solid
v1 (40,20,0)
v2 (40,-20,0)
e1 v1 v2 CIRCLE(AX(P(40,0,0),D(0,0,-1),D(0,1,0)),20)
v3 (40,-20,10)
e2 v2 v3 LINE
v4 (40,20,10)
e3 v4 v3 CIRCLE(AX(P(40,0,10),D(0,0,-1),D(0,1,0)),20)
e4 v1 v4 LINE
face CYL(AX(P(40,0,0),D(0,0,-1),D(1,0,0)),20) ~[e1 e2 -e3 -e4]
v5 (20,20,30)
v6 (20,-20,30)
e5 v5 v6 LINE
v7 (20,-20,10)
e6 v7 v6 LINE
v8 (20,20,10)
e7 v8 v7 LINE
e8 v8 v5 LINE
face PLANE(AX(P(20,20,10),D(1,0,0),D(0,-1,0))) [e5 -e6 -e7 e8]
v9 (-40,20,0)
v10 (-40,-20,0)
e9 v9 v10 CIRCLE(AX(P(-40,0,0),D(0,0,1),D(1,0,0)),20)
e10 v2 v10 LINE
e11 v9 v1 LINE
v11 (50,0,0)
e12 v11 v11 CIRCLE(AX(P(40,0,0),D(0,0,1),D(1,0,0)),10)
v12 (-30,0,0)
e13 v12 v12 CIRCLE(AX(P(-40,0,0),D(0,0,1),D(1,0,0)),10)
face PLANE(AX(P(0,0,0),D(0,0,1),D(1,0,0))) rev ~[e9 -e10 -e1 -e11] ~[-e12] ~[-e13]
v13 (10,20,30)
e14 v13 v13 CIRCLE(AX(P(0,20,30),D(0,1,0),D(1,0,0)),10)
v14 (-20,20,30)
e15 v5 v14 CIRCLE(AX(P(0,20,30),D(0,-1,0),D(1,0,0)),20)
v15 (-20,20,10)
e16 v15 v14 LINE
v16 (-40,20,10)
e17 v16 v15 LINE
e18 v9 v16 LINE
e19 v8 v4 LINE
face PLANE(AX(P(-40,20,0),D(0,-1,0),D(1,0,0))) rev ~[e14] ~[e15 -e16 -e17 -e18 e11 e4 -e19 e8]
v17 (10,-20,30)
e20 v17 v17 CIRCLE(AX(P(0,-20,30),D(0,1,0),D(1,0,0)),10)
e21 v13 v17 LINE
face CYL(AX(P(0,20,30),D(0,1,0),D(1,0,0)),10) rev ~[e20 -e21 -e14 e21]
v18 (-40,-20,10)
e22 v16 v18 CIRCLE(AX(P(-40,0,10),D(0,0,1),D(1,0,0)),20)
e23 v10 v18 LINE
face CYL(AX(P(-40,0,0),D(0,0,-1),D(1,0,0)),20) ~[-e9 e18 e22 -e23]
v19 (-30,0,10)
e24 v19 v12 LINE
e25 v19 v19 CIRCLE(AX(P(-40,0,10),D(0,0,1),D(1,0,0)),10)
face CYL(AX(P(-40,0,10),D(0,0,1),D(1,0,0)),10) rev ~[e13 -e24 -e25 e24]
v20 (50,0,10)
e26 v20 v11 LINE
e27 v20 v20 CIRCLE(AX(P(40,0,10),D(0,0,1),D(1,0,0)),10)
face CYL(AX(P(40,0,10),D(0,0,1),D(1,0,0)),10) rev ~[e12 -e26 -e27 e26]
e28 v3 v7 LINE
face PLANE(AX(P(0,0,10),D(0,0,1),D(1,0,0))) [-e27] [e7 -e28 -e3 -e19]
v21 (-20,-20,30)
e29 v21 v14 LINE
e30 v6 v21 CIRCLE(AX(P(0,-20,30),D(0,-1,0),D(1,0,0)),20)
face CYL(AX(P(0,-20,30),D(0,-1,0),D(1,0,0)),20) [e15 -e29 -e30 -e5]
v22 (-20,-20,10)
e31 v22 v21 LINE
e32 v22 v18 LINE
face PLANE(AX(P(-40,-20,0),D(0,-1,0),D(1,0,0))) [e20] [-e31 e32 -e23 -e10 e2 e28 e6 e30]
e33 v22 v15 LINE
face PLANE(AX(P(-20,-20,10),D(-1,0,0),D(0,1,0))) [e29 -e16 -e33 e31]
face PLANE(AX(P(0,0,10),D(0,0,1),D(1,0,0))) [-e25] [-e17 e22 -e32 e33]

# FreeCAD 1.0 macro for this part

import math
import FreeCAD as App
import Part
import Sketcher
from FreeCAD import Vector
Q = App.Units.Quantity

doc = App.newDocument("Part")
body = doc.addObject("PartDesign::Body", "Body")

sketch1 = body.newObject("Sketcher::SketchObject", "Sketch")
sketch1.AttachmentSupport = (doc.getObject("XY_Plane"), [""])
sketch1.MapMode = "FlatFace"
sketch1.addGeometry(Part.LineSegment(Vector(40, 20, 0), Vector(-40, 20, 0)), False)
sketch1.addGeometry(Part.ArcOfCircle(Part.Circle(Vector(-40, 0, 0), Vector(0, 0, 1), 20), math.radians(90), math.radians(270)), False)
sketch1.addGeometry(Part.LineSegment(Vector(-40, -20, 0), Vector(40, -20, 0)), False)
sketch1.addGeometry(Part.ArcOfCircle(Part.Circle(Vector(40, 0, 0), Vector(0, 0, 1), 20), math.radians(-90), math.radians(90)), False)
sketch1.addConstraint(Sketcher.Constraint("Tangent", 0, 2, 1, 1))
sketch1.addConstraint(Sketcher.Constraint("Tangent", 1, 2, 2, 1))
sketch1.addConstraint(Sketcher.Constraint("Tangent", 2, 2, 3, 1))
sketch1.addConstraint(Sketcher.Constraint("Tangent", 3, 2, 0, 1))
sketch1.addConstraint(Sketcher.Constraint("Horizontal", 0))
sketch1.addConstraint(Sketcher.Constraint("Horizontal", 2))
sketch1.addConstraint(Sketcher.Constraint("Symmetric", 1, 3, 3, 3, -1, 1))
sketch1.addConstraint(Sketcher.Constraint("Radius", 1, Q("20 mm")))
sketch1.addConstraint(Sketcher.Constraint("DistanceX", 0, 2, 0, 1, Q("80 mm")))
pad1 = body.newObject("PartDesign::Pad", "Pad")
pad1.Profile = sketch1
pad1.Length = 10

sketch2 = body.newObject("Sketcher::SketchObject", "Sketch001")
sketch2.AttachmentSupport = (doc.getObject("XY_Plane"), [""])
sketch2.MapMode = "FlatFace"
sketch2.AttachmentOffset = App.Placement(Vector(0, 0, 10), App.Rotation())
sketch2.addGeometry(Part.Circle(Vector(-40, 0, 0), Vector(0, 0, 1), 10), False)
sketch2.addGeometry(Part.Circle(Vector(40, 0, 0), Vector(0, 0, 1), 10), False)
sketch2.addConstraint(Sketcher.Constraint("Equal", 0, 1))
sketch2.addConstraint(Sketcher.Constraint("Symmetric", 0, 3, 1, 3, -1, 1))
sketch2.addConstraint(Sketcher.Constraint("PointOnObject", 0, 3, -1))
sketch2.addConstraint(Sketcher.Constraint("Diameter", 0, Q("20 mm")))
sketch2.addConstraint(Sketcher.Constraint("DistanceX", 0, 3, -1, 1, Q("40 mm")))
pocket1 = body.newObject("PartDesign::Pocket", "Pocket")
pocket1.Profile = sketch2
pocket1.Length = 10

sketch3 = body.newObject("Sketcher::SketchObject", "Sketch002")
sketch3.AttachmentSupport = (doc.getObject("XY_Plane"), [""])
sketch3.MapMode = "FlatFace"
sketch3.AttachmentOffset = App.Placement(Vector(0, 0, 10), App.Rotation())
sketch3.addGeometry(Part.LineSegment(Vector(20, 20, 0), Vector(-20, 20, 0)), False)
sketch3.addGeometry(Part.LineSegment(Vector(-20, 20, 0), Vector(-20, -20, 0)), False)
sketch3.addGeometry(Part.LineSegment(Vector(-20, -20, 0), Vector(20, -20, 0)), False)
sketch3.addGeometry(Part.LineSegment(Vector(20, -20, 0), Vector(20, 20, 0)), False)
sketch3.addConstraint(Sketcher.Constraint("Coincident", 0, 2, 1, 1))
sketch3.addConstraint(Sketcher.Constraint("Coincident", 1, 2, 2, 1))
sketch3.addConstraint(Sketcher.Constraint("Coincident", 2, 2, 3, 1))
sketch3.addConstraint(Sketcher.Constraint("Coincident", 3, 2, 0, 1))
sketch3.addConstraint(Sketcher.Constraint("Horizontal", 0))
sketch3.addConstraint(Sketcher.Constraint("Vertical", 1))
sketch3.addConstraint(Sketcher.Constraint("Horizontal", 2))
sketch3.addConstraint(Sketcher.Constraint("Vertical", 3))
sketch3.addConstraint(Sketcher.Constraint("Symmetric", 0, 2, 2, 2, -1, 1))
sketch3.addConstraint(Sketcher.Constraint("Equal", 2, 1))
sketch3.addConstraint(Sketcher.Constraint("DistanceX", 0, 2, 0, 1, Q("40 mm")))
pad2 = body.newObject("PartDesign::Pad", "Pad001")
pad2.Profile = sketch3
pad2.Length = 20

sketch4 = body.newObject("Sketcher::SketchObject", "Sketch003")
sketch4.AttachmentSupport = (doc.getObject("XZ_Plane"), [""])
sketch4.MapMode = "FlatFace"
sketch4.AttachmentOffset = App.Placement(Vector(0, 0, 20), App.Rotation())
sketch4.addGeometry(Part.LineSegment(Vector(-20, 30, 0), Vector(20, 30, 0)), False)
sketch4.addGeometry(Part.ArcOfCircle(Part.Circle(Vector(0, 30, 0), Vector(0, 0, 1), 20), math.radians(0), math.radians(180)), False)
sketch4.addConstraint(Sketcher.Constraint("Coincident", 0, 1, 1, 2))
sketch4.addConstraint(Sketcher.Constraint("Coincident", 1, 1, 0, 2))
sketch4.addConstraint(Sketcher.Constraint("Horizontal", 0))
sketch4.addConstraint(Sketcher.Constraint("PointOnObject", 1, 3, -2))
sketch4.addConstraint(Sketcher.Constraint("Horizontal", 1, 3, 0, 1))
sketch4.addConstraint(Sketcher.Constraint("Radius", 1, Q("20 mm")))
sketch4.addConstraint(Sketcher.Constraint("DistanceY", -1, 1, 1, 3, Q("30 mm")))
pad3 = body.newObject("PartDesign::Pad", "Pad002")
pad3.Profile = sketch4
pad3.Length = 40
pad3.Reversed = True

sketch5 = body.newObject("Sketcher::SketchObject", "Sketch004")
sketch5.AttachmentSupport = (doc.getObject("XZ_Plane"), [""])
sketch5.MapMode = "FlatFace"
sketch5.AttachmentOffset = App.Placement(Vector(0, 0, -20), App.Rotation())
sketch5.addGeometry(Part.Circle(Vector(0, 30, 0), Vector(0, 0, 1), 10), False)
sketch5.addConstraint(Sketcher.Constraint("PointOnObject", 0, 3, -2))
sketch5.addConstraint(Sketcher.Constraint("Diameter", 0, Q("20 mm")))
sketch5.addConstraint(Sketcher.Constraint("DistanceY", -1, 1, 0, 3, Q("30 mm")))
pocket2 = body.newObject("PartDesign::Pocket", "Pocket001")
pocket2.Profile = sketch5
pocket2.Length = 40
pocket2.Reversed = True

doc.recompute()
